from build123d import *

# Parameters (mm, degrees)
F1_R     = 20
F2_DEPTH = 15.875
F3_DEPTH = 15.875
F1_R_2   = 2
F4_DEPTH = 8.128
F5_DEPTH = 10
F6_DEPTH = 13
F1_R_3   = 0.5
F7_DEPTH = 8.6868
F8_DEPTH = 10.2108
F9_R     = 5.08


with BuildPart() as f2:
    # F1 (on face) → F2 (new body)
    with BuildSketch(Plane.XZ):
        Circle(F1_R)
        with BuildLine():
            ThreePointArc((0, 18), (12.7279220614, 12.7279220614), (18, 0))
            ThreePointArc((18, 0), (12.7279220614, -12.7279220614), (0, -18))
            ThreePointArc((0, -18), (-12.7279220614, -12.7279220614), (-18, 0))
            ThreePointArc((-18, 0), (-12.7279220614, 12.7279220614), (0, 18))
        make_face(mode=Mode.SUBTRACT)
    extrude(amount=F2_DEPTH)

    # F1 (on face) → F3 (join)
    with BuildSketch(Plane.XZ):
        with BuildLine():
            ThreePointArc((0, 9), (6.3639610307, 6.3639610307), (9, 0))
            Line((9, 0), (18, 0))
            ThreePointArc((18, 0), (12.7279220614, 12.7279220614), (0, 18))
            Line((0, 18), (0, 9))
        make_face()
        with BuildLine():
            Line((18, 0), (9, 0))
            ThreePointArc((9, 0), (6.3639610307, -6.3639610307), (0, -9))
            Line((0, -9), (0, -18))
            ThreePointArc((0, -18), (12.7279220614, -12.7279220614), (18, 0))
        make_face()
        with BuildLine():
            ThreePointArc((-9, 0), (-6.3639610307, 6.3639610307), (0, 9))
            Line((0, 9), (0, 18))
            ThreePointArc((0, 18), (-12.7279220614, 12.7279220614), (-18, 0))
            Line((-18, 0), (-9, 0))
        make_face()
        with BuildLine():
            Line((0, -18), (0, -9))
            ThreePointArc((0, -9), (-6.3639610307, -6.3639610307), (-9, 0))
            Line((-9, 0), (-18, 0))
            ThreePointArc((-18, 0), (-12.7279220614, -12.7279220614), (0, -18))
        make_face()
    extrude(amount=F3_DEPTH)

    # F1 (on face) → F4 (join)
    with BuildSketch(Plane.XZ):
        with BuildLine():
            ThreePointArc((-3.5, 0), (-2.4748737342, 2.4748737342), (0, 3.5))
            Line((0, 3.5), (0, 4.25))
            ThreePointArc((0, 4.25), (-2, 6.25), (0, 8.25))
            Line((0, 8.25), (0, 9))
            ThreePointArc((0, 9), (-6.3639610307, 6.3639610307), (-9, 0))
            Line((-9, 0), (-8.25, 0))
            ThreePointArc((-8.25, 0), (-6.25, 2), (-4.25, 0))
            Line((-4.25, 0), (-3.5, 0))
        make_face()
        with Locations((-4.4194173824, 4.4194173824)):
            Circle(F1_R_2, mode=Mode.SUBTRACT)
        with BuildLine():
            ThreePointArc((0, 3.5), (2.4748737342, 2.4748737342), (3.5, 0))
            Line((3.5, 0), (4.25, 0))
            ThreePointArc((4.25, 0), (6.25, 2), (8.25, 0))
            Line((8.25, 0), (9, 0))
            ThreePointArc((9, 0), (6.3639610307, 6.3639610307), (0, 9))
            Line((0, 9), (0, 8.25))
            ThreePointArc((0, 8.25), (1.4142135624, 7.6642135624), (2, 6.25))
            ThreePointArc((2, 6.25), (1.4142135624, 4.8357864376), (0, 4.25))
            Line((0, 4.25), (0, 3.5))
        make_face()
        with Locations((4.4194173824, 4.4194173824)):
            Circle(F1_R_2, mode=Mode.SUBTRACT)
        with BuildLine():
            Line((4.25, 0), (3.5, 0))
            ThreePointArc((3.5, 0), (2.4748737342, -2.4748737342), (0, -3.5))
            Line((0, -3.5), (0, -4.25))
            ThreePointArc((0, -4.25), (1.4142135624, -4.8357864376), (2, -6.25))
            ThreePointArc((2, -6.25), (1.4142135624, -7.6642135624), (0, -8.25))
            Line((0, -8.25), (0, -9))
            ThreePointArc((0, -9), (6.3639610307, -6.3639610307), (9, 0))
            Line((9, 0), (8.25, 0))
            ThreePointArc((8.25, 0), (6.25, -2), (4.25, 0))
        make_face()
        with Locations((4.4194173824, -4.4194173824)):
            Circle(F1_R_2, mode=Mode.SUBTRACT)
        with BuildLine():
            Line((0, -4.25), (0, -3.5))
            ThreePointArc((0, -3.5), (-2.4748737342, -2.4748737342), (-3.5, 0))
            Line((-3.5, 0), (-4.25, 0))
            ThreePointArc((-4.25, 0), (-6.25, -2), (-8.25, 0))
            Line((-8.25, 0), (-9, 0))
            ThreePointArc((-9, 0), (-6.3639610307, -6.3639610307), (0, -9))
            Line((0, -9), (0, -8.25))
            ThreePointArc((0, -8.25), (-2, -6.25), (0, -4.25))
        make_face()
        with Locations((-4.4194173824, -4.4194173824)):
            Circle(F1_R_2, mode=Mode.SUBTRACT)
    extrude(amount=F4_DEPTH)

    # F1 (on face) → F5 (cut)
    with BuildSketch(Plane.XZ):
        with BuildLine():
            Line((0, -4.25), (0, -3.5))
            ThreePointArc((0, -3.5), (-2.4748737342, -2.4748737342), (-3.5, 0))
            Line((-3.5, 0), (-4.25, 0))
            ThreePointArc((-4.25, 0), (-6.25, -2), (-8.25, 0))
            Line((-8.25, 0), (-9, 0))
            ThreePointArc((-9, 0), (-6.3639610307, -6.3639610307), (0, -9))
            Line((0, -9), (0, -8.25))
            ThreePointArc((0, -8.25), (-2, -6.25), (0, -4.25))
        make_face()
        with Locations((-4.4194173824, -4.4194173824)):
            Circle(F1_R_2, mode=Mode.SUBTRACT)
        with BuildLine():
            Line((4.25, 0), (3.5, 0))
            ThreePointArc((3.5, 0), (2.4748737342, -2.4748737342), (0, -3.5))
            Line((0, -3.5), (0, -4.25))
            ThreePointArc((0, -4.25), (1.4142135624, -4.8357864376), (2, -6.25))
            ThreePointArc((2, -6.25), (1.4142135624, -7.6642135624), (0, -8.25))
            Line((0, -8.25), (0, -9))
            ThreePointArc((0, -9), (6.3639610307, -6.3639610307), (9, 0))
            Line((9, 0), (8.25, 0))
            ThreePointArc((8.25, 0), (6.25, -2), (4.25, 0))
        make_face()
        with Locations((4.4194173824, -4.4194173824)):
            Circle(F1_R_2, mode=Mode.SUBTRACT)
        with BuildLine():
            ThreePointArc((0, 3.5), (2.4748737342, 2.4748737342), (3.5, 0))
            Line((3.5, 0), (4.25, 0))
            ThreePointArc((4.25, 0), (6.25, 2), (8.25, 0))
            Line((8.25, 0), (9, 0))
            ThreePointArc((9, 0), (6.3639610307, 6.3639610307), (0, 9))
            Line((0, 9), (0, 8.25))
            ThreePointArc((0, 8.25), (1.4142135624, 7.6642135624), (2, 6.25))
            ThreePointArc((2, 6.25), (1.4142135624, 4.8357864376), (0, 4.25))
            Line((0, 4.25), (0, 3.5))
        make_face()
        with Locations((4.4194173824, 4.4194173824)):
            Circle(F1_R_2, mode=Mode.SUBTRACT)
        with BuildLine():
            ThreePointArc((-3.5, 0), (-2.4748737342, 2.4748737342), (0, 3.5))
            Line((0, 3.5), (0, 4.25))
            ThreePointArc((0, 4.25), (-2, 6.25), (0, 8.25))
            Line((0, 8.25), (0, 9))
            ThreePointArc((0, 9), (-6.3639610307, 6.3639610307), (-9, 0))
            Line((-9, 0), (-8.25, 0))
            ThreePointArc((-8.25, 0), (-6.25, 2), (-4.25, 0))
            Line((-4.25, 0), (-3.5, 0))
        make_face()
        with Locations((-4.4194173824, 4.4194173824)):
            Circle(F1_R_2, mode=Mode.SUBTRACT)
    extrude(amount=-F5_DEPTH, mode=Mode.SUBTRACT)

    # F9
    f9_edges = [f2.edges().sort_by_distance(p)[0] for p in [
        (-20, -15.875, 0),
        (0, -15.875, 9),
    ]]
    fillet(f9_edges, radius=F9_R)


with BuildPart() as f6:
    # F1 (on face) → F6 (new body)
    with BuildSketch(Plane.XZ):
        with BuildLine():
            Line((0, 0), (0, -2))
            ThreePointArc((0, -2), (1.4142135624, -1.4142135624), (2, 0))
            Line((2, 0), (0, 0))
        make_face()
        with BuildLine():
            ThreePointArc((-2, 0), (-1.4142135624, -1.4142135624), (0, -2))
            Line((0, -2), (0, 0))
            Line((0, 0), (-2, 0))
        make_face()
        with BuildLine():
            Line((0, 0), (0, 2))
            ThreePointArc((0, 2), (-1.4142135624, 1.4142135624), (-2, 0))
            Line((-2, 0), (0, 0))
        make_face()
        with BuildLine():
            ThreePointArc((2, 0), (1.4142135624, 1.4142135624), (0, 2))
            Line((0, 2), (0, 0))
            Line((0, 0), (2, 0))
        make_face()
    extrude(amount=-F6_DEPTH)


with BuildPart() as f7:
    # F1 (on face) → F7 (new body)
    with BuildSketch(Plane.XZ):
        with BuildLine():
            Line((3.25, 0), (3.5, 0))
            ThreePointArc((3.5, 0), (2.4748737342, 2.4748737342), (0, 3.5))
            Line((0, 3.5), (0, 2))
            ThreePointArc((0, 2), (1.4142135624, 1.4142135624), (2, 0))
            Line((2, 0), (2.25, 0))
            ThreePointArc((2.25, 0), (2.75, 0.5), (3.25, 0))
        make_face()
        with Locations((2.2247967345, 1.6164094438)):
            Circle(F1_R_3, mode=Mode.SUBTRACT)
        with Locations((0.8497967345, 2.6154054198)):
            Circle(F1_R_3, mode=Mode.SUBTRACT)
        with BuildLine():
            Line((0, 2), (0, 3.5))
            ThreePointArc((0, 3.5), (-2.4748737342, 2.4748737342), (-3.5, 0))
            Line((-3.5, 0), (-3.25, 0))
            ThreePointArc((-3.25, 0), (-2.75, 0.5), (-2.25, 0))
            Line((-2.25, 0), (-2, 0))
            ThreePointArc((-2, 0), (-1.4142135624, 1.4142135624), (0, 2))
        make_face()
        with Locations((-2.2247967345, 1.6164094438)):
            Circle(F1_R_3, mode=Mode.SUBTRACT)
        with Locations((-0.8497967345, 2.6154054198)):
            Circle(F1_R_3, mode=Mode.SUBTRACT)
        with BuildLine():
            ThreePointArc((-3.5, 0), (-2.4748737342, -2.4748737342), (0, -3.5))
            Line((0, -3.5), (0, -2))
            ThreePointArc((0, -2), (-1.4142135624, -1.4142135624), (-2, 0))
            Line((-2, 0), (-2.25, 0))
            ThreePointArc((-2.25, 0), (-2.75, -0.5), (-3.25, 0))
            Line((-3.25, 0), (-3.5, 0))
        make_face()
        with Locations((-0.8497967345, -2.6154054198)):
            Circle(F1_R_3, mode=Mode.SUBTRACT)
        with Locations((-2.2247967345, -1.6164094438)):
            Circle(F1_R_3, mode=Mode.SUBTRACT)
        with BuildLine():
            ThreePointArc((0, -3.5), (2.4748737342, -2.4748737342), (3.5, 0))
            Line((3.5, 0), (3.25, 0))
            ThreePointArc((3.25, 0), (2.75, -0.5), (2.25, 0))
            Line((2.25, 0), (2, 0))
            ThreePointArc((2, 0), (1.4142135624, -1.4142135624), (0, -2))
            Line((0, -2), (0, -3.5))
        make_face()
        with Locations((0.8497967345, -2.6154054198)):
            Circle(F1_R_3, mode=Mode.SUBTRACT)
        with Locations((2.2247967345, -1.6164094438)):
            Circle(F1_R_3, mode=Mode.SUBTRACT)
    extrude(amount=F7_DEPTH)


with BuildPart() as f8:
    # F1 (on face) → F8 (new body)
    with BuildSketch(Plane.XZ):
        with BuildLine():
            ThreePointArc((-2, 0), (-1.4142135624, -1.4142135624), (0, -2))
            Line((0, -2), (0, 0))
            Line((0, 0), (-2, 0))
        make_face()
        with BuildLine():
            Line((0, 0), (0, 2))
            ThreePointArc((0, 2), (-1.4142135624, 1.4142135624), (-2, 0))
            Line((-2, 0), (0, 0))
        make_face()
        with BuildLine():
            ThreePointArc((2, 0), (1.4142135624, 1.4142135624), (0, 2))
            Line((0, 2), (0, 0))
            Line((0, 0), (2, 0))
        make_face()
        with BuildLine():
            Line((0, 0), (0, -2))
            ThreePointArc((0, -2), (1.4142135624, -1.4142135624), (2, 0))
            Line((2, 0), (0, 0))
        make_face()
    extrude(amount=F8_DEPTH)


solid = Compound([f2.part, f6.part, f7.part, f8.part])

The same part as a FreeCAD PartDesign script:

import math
import FreeCAD as App
import Part
import Sketcher

V = App.Vector
Q = App.Units.Quantity


def edges_at(feature, points):
    """Names of the edges that pass closest to the given points."""
    edges = feature.Shape.Edges
    near = lambda p: min(range(len(edges)), key=lambda i: edges[i].distToShape(Part.Vertex(*p))[0])
    return sorted({f"Edge{near(p) + 1}" for p in points})

doc = App.newDocument("Part")
body = doc.addObject("PartDesign::Body", "Body")

# Sketch on XZ plane
sketch1 = doc.addObject("Sketcher::SketchObject", "Sketch")
body.addObject(sketch1)
sketch1.AttachmentSupport = (doc.XZ_Plane, [""])
sketch1.MapMode = "FlatFace"
sketch1.addGeometry(Part.Circle(V(0, 0, 0), V(0, 0, 1), 20), False)
sketch1.addGeometry(Part.ArcOfCircle(Part.Circle(V(0, 0, 0), V(0, 0, 1), 18), math.radians(90), math.radians(180)), False)
sketch1.addGeometry(Part.ArcOfCircle(Part.Circle(V(0, 0, 0), V(0, 0, 1), 18), math.radians(0), math.radians(90)), False)
sketch1.addGeometry(Part.ArcOfCircle(Part.Circle(V(0, 0, 0), V(0, 0, 1), 18), math.radians(-90), math.radians(0)), False)
sketch1.addGeometry(Part.ArcOfCircle(Part.Circle(V(0, 0, 0), V(0, 0, 1), 18), math.radians(180), math.radians(270)), False)
sketch1.addConstraint(Sketcher.Constraint("Tangent", 1, 1, 2, 2))
sketch1.addConstraint(Sketcher.Constraint("Tangent", 2, 1, 3, 2))
sketch1.addConstraint(Sketcher.Constraint("Tangent", 3, 1, 4, 2))
sketch1.addConstraint(Sketcher.Constraint("Tangent", 4, 1, 1, 2))
sketch1.addConstraint(Sketcher.Constraint("Coincident", 0, 3, -1, 1))
sketch1.addConstraint(Sketcher.Constraint("Coincident", 1, 3, -1, 1))
sketch1.addConstraint(Sketcher.Constraint("Equal", 1, 2))
sketch1.addConstraint(Sketcher.Constraint("PointOnObject", 1, 1, -2))
sketch1.addConstraint(Sketcher.Constraint("PointOnObject", 2, 1, -1))
sketch1.addConstraint(Sketcher.Constraint("PointOnObject", 3, 1, -2))
sketch1.addConstraint(Sketcher.Constraint("PointOnObject", 4, 1, -1))
sketch1.addConstraint(Sketcher.Constraint("Diameter", 0, Q("40 mm")))
sketch1.addConstraint(Sketcher.Constraint("Radius", 1, Q("18 mm")))
pad1 = doc.addObject("PartDesign::Pad", "Pad")
body.addObject(pad1)
pad1.Profile = sketch1
pad1.Length = 15.875

# Sketch on XZ plane
sketch2 = doc.addObject("Sketcher::SketchObject", "Sketch001")
body.addObject(sketch2)
sketch2.AttachmentSupport = (doc.XZ_Plane, [""])
sketch2.MapMode = "FlatFace"
sketch2.addGeometry(Part.ArcOfCircle(Part.Circle(V(0, 0, 0), V(0, 0, 1), 18), math.radians(-90), math.radians(0)), False)
sketch2.addGeometry(Part.ArcOfCircle(Part.Circle(V(0, 0, 0), V(0, 0, 1), 18), math.radians(0), math.radians(90)), False)
sketch2.addGeometry(Part.ArcOfCircle(Part.Circle(V(0, 0, 0), V(0, 0, 1), 18), math.radians(90), math.radians(180)), False)
sketch2.addGeometry(Part.ArcOfCircle(Part.Circle(V(0, 0, 0), V(0, 0, 1), 18), math.radians(180), math.radians(270)), False)
sketch2.addGeometry(Part.ArcOfCircle(Part.Circle(V(0, 0, 0), V(0, 0, 1), 9), math.radians(0), math.radians(90)), False)
sketch2.addGeometry(Part.ArcOfCircle(Part.Circle(V(0, 0, 0), V(0, 0, 1), 9), math.radians(-90), math.radians(0)), False)
sketch2.addGeometry(Part.ArcOfCircle(Part.Circle(V(0, 0, 0), V(0, 0, 1), 9), math.radians(180), math.radians(270)), False)
sketch2.addGeometry(Part.ArcOfCircle(Part.Circle(V(0, 0, 0), V(0, 0, 1), 9), math.radians(90), math.radians(180)), False)
sketch2.addConstraint(Sketcher.Constraint("Tangent", 0, 2, 1, 1))
sketch2.addConstraint(Sketcher.Constraint("Tangent", 1, 2, 2, 1))
sketch2.addConstraint(Sketcher.Constraint("Tangent", 2, 2, 3, 1))
sketch2.addConstraint(Sketcher.Constraint("Tangent", 3, 2, 0, 1))
sketch2.addConstraint(Sketcher.Constraint("Tangent", 4, 1, 5, 2))
sketch2.addConstraint(Sketcher.Constraint("Tangent", 5, 1, 6, 2))
sketch2.addConstraint(Sketcher.Constraint("Tangent", 6, 1, 7, 2))
sketch2.addConstraint(Sketcher.Constraint("Tangent", 7, 1, 4, 2))
sketch2.addConstraint(Sketcher.Constraint("Coincident", 0, 3, -1, 1))
sketch2.addConstraint(Sketcher.Constraint("Coincident", 4, 3, -1, 1))
sketch2.addConstraint(Sketcher.Constraint("Equal", 0, 1))
sketch2.addConstraint(Sketcher.Constraint("Equal", 4, 5))
sketch2.addConstraint(Sketcher.Constraint("PointOnObject", 0, 2, -1))
sketch2.addConstraint(Sketcher.Constraint("PointOnObject", 1, 2, -2))
sketch2.addConstraint(Sketcher.Constraint("PointOnObject", 2, 2, -1))
sketch2.addConstraint(Sketcher.Constraint("PointOnObject", 3, 2, -2))
sketch2.addConstraint(Sketcher.Constraint("PointOnObject", 4, 1, -1))
sketch2.addConstraint(Sketcher.Constraint("PointOnObject", 5, 1, -2))
sketch2.addConstraint(Sketcher.Constraint("PointOnObject", 6, 1, -1))
sketch2.addConstraint(Sketcher.Constraint("PointOnObject", 7, 1, -2))
sketch2.addConstraint(Sketcher.Constraint("Radius", 0, Q("18 mm")))
sketch2.addConstraint(Sketcher.Constraint("Radius", 4, Q("9 mm")))
pad2 = doc.addObject("PartDesign::Pad", "Pad001")
body.addObject(pad2)
pad2.Profile = sketch2
pad2.Length = 15.875

# Sketch on XZ plane
sketch3 = doc.addObject("Sketcher::SketchObject", "Sketch002")
body.addObject(sketch3)
sketch3.AttachmentSupport = (doc.XZ_Plane, [""])
sketch3.MapMode = "FlatFace"
sketch3.addGeometry(Part.ArcOfCircle(Part.Circle(V(0, 0, 0), V(0, 0, 1), 9), math.radians(90), math.radians(180)), False)
sketch3.addGeometry(Part.ArcOfCircle(Part.Circle(V(0, 0, 0), V(0, 0, 1), 9), math.radians(180), math.radians(270)), False)
sketch3.addGeometry(Part.ArcOfCircle(Part.Circle(V(0, 0, 0), V(0, 0, 1), 9), math.radians(-90), math.radians(0)), False)
sketch3.addGeometry(Part.ArcOfCircle(Part.Circle(V(0, 0, 0), V(0, 0, 1), 9), math.radians(0), math.radians(90)), False)
sketch3.addGeometry(Part.Circle(V(-4.4, -4.4, 0), V(0, 0, 1), 2), False)
sketch3.addGeometry(Part.ArcOfCircle(Part.Circle(V(0, -6.2, 0), V(0, 0, 1), 2), math.radians(0), math.radians(90)), False)
sketch3.addGeometry(Part.ArcOfCircle(Part.Circle(V(0, -6.2, 0), V(0, 0, 1), 2), math.radians(-90), math.radians(0)), False)
sketch3.addGeometry(Part.ArcOfCircle(Part.Circle(V(0, -6.2, 0), V(0, 0, 1), 2), math.radians(90), math.radians(270)), False)
sketch3.addGeometry(Part.Circle(V(4.4, -4.4, 0), V(0, 0, 1), 2), False)
sketch3.addGeometry(Part.Circle(V(-6.2, 0, 0), V(0, 0, 1), 2), False)
sketch3.addGeometry(Part.Circle(V(-4.4, 4.4, 0), V(0, 0, 1), 2), False)
sketch3.addGeometry(Part.ArcOfCircle(Part.Circle(V(0, 0, 0), V(0, 0, 1), 3.5), math.radians(90), math.radians(180)), False)
sketch3.addGeometry(Part.ArcOfCircle(Part.Circle(V(0, 0, 0), V(0, 0, 1), 3.5), math.radians(0), math.radians(90)), False)
sketch3.addGeometry(Part.ArcOfCircle(Part.Circle(V(0, 0, 0), V(0, 0, 1), 3.5), math.radians(-90), math.radians(0)), False)
sketch3.addGeometry(Part.ArcOfCircle(Part.Circle(V(0, 0, 0), V(0, 0, 1), 3.5), math.radians(180), math.radians(270)), False)
sketch3.addGeometry(Part.Circle(V(6.2, 0, 0), V(0, 0, 1), 2), False)
sketch3.addGeometry(Part.ArcOfCircle(Part.Circle(V(0, 6.2, 0), V(0, 0, 1), 2), math.radians(90), math.radians(270)), False)
sketch3.addGeometry(Part.ArcOfCircle(Part.Circle(V(0, 6.2, 0), V(0, 0, 1), 2), math.radians(0), math.radians(90)), False)
sketch3.addGeometry(Part.ArcOfCircle(Part.Circle(V(0, 6.2, 0), V(0, 0, 1), 2), math.radians(-90), math.radians(0)), False)
sketch3.addGeometry(Part.Circle(V(4.4, 4.4, 0), V(0, 0, 1), 2), False)
sketch3.addConstraint(Sketcher.Constraint("Tangent", 0, 2, 1, 1))
sketch3.addConstraint(Sketcher.Constraint("Tangent", 1, 2, 2, 1))
sketch3.addConstraint(Sketcher.Constraint("Tangent", 2, 2, 3, 1))
sketch3.addConstraint(Sketcher.Constraint("Tangent", 3, 2, 0, 1))
sketch3.addConstraint(Sketcher.Constraint("Tangent", 5, 1, 6, 2))
sketch3.addConstraint(Sketcher.Constraint("Tangent", 6, 1, 7, 2))
sketch3.addConstraint(Sketcher.Constraint("Tangent", 7, 1, 5, 2))
sketch3.addConstraint(Sketcher.Constraint("Tangent", 11, 1, 12, 2))
sketch3.addConstraint(Sketcher.Constraint("Tangent", 12, 1, 13, 2))
sketch3.addConstraint(Sketcher.Constraint("Tangent", 13, 1, 14, 2))
sketch3.addConstraint(Sketcher.Constraint("Tangent", 14, 1, 11, 2))
sketch3.addConstraint(Sketcher.Constraint("Tangent", 16, 1, 17, 2))
sketch3.addConstraint(Sketcher.Constraint("Tangent", 17, 1, 18, 2))
sketch3.addConstraint(Sketcher.Constraint("Tangent", 18, 1, 16, 2))
sketch3.addConstraint(Sketcher.Constraint("Coincident", 0, 3, -1, 1))
sketch3.addConstraint(Sketcher.Constraint("Coincident", 11, 3, -1, 1))
sketch3.addConstraint(Sketcher.Constraint("Equal", 0, 1))
sketch3.addConstraint(Sketcher.Constraint("Equal", 4, 5))
sketch3.addConstraint(Sketcher.Constraint("Equal", 7, 8))
sketch3.addConstraint(Sketcher.Constraint("Equal", 8, 9))
sketch3.addConstraint(Sketcher.Constraint("Equal", 9, 10))
sketch3.addConstraint(Sketcher.Constraint("Equal", 11, 12))
sketch3.addConstraint(Sketcher.Constraint("Equal", 10, 15))
sketch3.addConstraint(Sketcher.Constraint("Equal", 15, 16))
sketch3.addConstraint(Sketcher.Constraint("Equal", 18, 19))
sketch3.addConstraint(Sketcher.Constraint("Symmetric", 8, 3, 10, 3, -1, 1))
sketch3.addConstraint(Sketcher.Constraint("Symmetric", 9, 3, 15, 3, -1, 1))
sketch3.addConstraint(Sketcher.Constraint("Symmetric", 5, 3, 16, 3, -1, 1))
sketch3.addConstraint(Sketcher.Constraint("Symmetric", 4, 3, 19, 3, -1, 1))
sketch3.addConstraint(Sketcher.Constraint("Symmetric", 4, 3, 8, 3, -2))
sketch3.addConstraint(Sketcher.Constraint("Symmetric", 5, 1, 17, 1, -1))
sketch3.addConstraint(Sketcher.Constraint("PointOnObject", 9, 3, -1))
sketch3.addConstraint(Sketcher.Constraint("PointOnObject", 0, 2, -1))
sketch3.addConstraint(Sketcher.Constraint("PointOnObject", 1, 2, -2))
sketch3.addConstraint(Sketcher.Constraint("PointOnObject", 2, 2, -1))
sketch3.addConstraint(Sketcher.Constraint("PointOnObject", 3, 2, -2))
sketch3.addConstraint(Sketcher.Constraint("PointOnObject", 6, 1, -2))
sketch3.addConstraint(Sketcher.Constraint("PointOnObject", 7, 1, -2))
sketch3.addConstraint(Sketcher.Constraint("PointOnObject", 11, 1, -2))
sketch3.addConstraint(Sketcher.Constraint("PointOnObject", 12, 1, -1))
sketch3.addConstraint(Sketcher.Constraint("PointOnObject", 13, 1, -2))
sketch3.addConstraint(Sketcher.Constraint("PointOnObject", 14, 1, -1))
sketch3.addConstraint(Sketcher.Constraint("PointOnObject", 16, 1, -2))
sketch3.addConstraint(Sketcher.Constraint("PointOnObject", 18, 1, -2))
sketch3.addConstraint(Sketcher.Constraint("Horizontal", 7, 3, 5, 1))
sketch3.addConstraint(Sketcher.Constraint("Diameter", 4, Q("4 mm")))
sketch3.addConstraint(Sketcher.Constraint("Radius", 0, Q("9 mm")))
sketch3.addConstraint(Sketcher.Constraint("Radius", 11, Q("3.5 mm")))
sketch3.addConstraint(Sketcher.Constraint("DistanceY", 5, 3, -1, 1, Q("6.25 mm")))
sketch3.addConstraint(Sketcher.Constraint("DistanceX", 9, 3, -1, 1, Q("6.25 mm")))
sketch3.addConstraint(Sketcher.Constraint("DistanceX", 4, 3, -1, 1, Q("4.419417 mm")))
sketch3.addConstraint(Sketcher.Constraint("DistanceY", 4, 3, -1, 1, Q("4.419417 mm")))
pad3 = doc.addObject("PartDesign::Pad", "Pad002")
body.addObject(pad3)
pad3.Profile = sketch3
pad3.Length = 8.128

# Sketch on XZ plane
sketch4 = doc.addObject("Sketcher::SketchObject", "Sketch003")
body.addObject(sketch4)
sketch4.AttachmentSupport = (doc.XZ_Plane, [""])
sketch4.MapMode = "FlatFace"
sketch4.addGeometry(Part.ArcOfCircle(Part.Circle(V(0, 0, 0), V(0, 0, 1), 9), math.radians(180), math.radians(270)), False)
sketch4.addGeometry(Part.ArcOfCircle(Part.Circle(V(0, 0, 0), V(0, 0, 1), 9), math.radians(-90), math.radians(0)), False)
sketch4.addGeometry(Part.ArcOfCircle(Part.Circle(V(0, 0, 0), V(0, 0, 1), 9), math.radians(0), math.radians(90)), False)
sketch4.addGeometry(Part.ArcOfCircle(Part.Circle(V(0, 0, 0), V(0, 0, 1), 9), math.radians(90), math.radians(180)), False)
sketch4.addGeometry(Part.Circle(V(-4.4, -4.4, 0), V(0, 0, 1), 2), False)
sketch4.addGeometry(Part.ArcOfCircle(Part.Circle(V(0, -6.2, 0), V(0, 0, 1), 2), math.radians(90), math.radians(270)), False)
sketch4.addGeometry(Part.ArcOfCircle(Part.Circle(V(0, -6.2, 0), V(0, 0, 1), 2), math.radians(0), math.radians(90)), False)
sketch4.addGeometry(Part.ArcOfCircle(Part.Circle(V(0, -6.2, 0), V(0, 0, 1), 2), math.radians(-90), math.radians(0)), False)
sketch4.addGeometry(Part.Circle(V(4.4, -4.4, 0), V(0, 0, 1), 2), False)
sketch4.addGeometry(Part.Circle(V(-6.2, 0, 0), V(0, 0, 1), 2), False)
sketch4.addGeometry(Part.Circle(V(-4.4, 4.4, 0), V(0, 0, 1), 2), False)
sketch4.addGeometry(Part.ArcOfCircle(Part.Circle(V(0, 0, 0), V(0, 0, 1), 3.5), math.radians(180), math.radians(270)), False)
sketch4.addGeometry(Part.ArcOfCircle(Part.Circle(V(0, 0, 0), V(0, 0, 1), 3.5), math.radians(90), math.radians(180)), False)
sketch4.addGeometry(Part.ArcOfCircle(Part.Circle(V(0, 0, 0), V(0, 0, 1), 3.5), math.radians(0), math.radians(90)), False)
sketch4.addGeometry(Part.ArcOfCircle(Part.Circle(V(0, 0, 0), V(0, 0, 1), 3.5), math.radians(-90), math.radians(0)), False)
sketch4.addGeometry(Part.Circle(V(6.2, 0, 0), V(0, 0, 1), 2), False)
sketch4.addGeometry(Part.ArcOfCircle(Part.Circle(V(0, 6.2, 0), V(0, 0, 1), 2), math.radians(-90), math.radians(0)), False)
sketch4.addGeometry(Part.ArcOfCircle(Part.Circle(V(0, 6.2, 0), V(0, 0, 1), 2), math.radians(90), math.radians(270)), False)
sketch4.addGeometry(Part.ArcOfCircle(Part.Circle(V(0, 6.2, 0), V(0, 0, 1), 2), math.radians(0), math.radians(90)), False)
sketch4.addGeometry(Part.Circle(V(4.4, 4.4, 0), V(0, 0, 1), 2), False)
sketch4.addConstraint(Sketcher.Constraint("Tangent", 0, 2, 1, 1))
sketch4.addConstraint(Sketcher.Constraint("Tangent", 1, 2, 2, 1))
sketch4.addConstraint(Sketcher.Constraint("Tangent", 2, 2, 3, 1))
sketch4.addConstraint(Sketcher.Constraint("Tangent", 3, 2, 0, 1))
sketch4.addConstraint(Sketcher.Constraint("Tangent", 5, 1, 6, 2))
sketch4.addConstraint(Sketcher.Constraint("Tangent", 6, 1, 7, 2))
sketch4.addConstraint(Sketcher.Constraint("Tangent", 7, 1, 5, 2))
sketch4.addConstraint(Sketcher.Constraint("Tangent", 11, 1, 12, 2))
sketch4.addConstraint(Sketcher.Constraint("Tangent", 12, 1, 13, 2))
sketch4.addConstraint(Sketcher.Constraint("Tangent", 13, 1, 14, 2))
sketch4.addConstraint(Sketcher.Constraint("Tangent", 14, 1, 11, 2))
sketch4.addConstraint(Sketcher.Constraint("Tangent", 16, 1, 17, 2))
sketch4.addConstraint(Sketcher.Constraint("Tangent", 17, 1, 18, 2))
sketch4.addConstraint(Sketcher.Constraint("Tangent", 18, 1, 16, 2))
sketch4.addConstraint(Sketcher.Constraint("Coincident", 0, 3, -1, 1))
sketch4.addConstraint(Sketcher.Constraint("Coincident", 11, 3, -1, 1))
sketch4.addConstraint(Sketcher.Constraint("Equal", 0, 1))
sketch4.addConstraint(Sketcher.Constraint("Equal", 4, 5))
sketch4.addConstraint(Sketcher.Constraint("Equal", 7, 8))
sketch4.addConstraint(Sketcher.Constraint("Equal", 8, 9))
sketch4.addConstraint(Sketcher.Constraint("Equal", 9, 10))
sketch4.addConstraint(Sketcher.Constraint("Equal", 11, 12))
sketch4.addConstraint(Sketcher.Constraint("Equal", 10, 15))
sketch4.addConstraint(Sketcher.Constraint("Equal", 15, 16))
sketch4.addConstraint(Sketcher.Constraint("Equal", 18, 19))
sketch4.addConstraint(Sketcher.Constraint("Symmetric", 8, 3, 10, 3, -1, 1))
sketch4.addConstraint(Sketcher.Constraint("Symmetric", 9, 3, 15, 3, -1, 1))
sketch4.addConstraint(Sketcher.Constraint("Symmetric", 5, 3, 16, 3, -1, 1))
sketch4.addConstraint(Sketcher.Constraint("Symmetric", 4, 3, 19, 3, -1, 1))
sketch4.addConstraint(Sketcher.Constraint("Symmetric", 4, 3, 8, 3, -2))
sketch4.addConstraint(Sketcher.Constraint("Symmetric", 6, 1, 18, 1, -1))
sketch4.addConstraint(Sketcher.Constraint("PointOnObject", 9, 3, -1))
sketch4.addConstraint(Sketcher.Constraint("PointOnObject", 0, 2, -2))
sketch4.addConstraint(Sketcher.Constraint("PointOnObject", 1, 2, -1))
sketch4.addConstraint(Sketcher.Constraint("PointOnObject", 2, 2, -2))
sketch4.addConstraint(Sketcher.Constraint("PointOnObject", 3, 2, -1))
sketch4.addConstraint(Sketcher.Constraint("PointOnObject", 5, 1, -2))
sketch4.addConstraint(Sketcher.Constraint("PointOnObject", 7, 1, -2))
sketch4.addConstraint(Sketcher.Constraint("PointOnObject", 11, 1, -1))
sketch4.addConstraint(Sketcher.Constraint("PointOnObject", 12, 1, -2))
sketch4.addConstraint(Sketcher.Constraint("PointOnObject", 13, 1, -1))
sketch4.addConstraint(Sketcher.Constraint("PointOnObject", 14, 1, -2))
sketch4.addConstraint(Sketcher.Constraint("PointOnObject", 16, 1, -2))
sketch4.addConstraint(Sketcher.Constraint("PointOnObject", 17, 1, -2))
sketch4.addConstraint(Sketcher.Constraint("Horizontal", 7, 3, 6, 1))
sketch4.addConstraint(Sketcher.Constraint("Diameter", 4, Q("4 mm")))
sketch4.addConstraint(Sketcher.Constraint("Radius", 0, Q("9 mm")))
sketch4.addConstraint(Sketcher.Constraint("Radius", 11, Q("3.5 mm")))
sketch4.addConstraint(Sketcher.Constraint("DistanceY", 5, 3, -1, 1, Q("6.25 mm")))
sketch4.addConstraint(Sketcher.Constraint("DistanceX", 9, 3, -1, 1, Q("6.25 mm")))
sketch4.addConstraint(Sketcher.Constraint("DistanceX", 4, 3, -1, 1, Q("4.419417 mm")))
sketch4.addConstraint(Sketcher.Constraint("DistanceY", 4, 3, -1, 1, Q("4.419417 mm")))
pocket1 = doc.addObject("PartDesign::Pocket", "Pocket")
body.addObject(pocket1)
pocket1.Profile = sketch4
pocket1.Length = 10
doc.recompute()

fillet = doc.addObject("PartDesign::Fillet", "Fillet")
body.addObject(fillet)
fillet.Base = (pocket1, edges_at(pocket1, [(-20, -15.875, 0), (6.364, -15.875, 6.364)]))
fillet.Radius = 5.08
body2 = doc.addObject("PartDesign::Body", "Body001")

# Sketch on XZ plane
sketch5 = doc.addObject("Sketcher::SketchObject", "Sketch004")
body2.addObject(sketch5)
sketch5.AttachmentSupport = (doc.getObject("XZ_Plane001"), [""])
sketch5.MapMode = "FlatFace"
sketch5.addGeometry(Part.ArcOfCircle(Part.Circle(V(0, 0, 0), V(0, 0, 1), 2), math.radians(-90), math.radians(0)), False)
sketch5.addGeometry(Part.ArcOfCircle(Part.Circle(V(0, 0, 0), V(0, 0, 1), 2), math.radians(0), math.radians(90)), False)
sketch5.addGeometry(Part.ArcOfCircle(Part.Circle(V(0, 0, 0), V(0, 0, 1), 2), math.radians(90), math.radians(180)), False)
sketch5.addGeometry(Part.ArcOfCircle(Part.Circle(V(0, 0, 0), V(0, 0, 1), 2), math.radians(180), math.radians(270)), False)
sketch5.addConstraint(Sketcher.Constraint("Tangent", 0, 2, 1, 1))
sketch5.addConstraint(Sketcher.Constraint("Tangent", 1, 2, 2, 1))
sketch5.addConstraint(Sketcher.Constraint("Tangent", 2, 2, 3, 1))
sketch5.addConstraint(Sketcher.Constraint("Tangent", 3, 2, 0, 1))
sketch5.addConstraint(Sketcher.Constraint("Coincident", 0, 3, -1, 1))
sketch5.addConstraint(Sketcher.Constraint("Equal", 0, 1))
sketch5.addConstraint(Sketcher.Constraint("PointOnObject", 0, 2, -1))
sketch5.addConstraint(Sketcher.Constraint("PointOnObject", 1, 2, -2))
sketch5.addConstraint(Sketcher.Constraint("PointOnObject", 2, 2, -1))
sketch5.addConstraint(Sketcher.Constraint("PointOnObject", 3, 2, -2))
sketch5.addConstraint(Sketcher.Constraint("Radius", 0, Q("2 mm")))
pad4 = doc.addObject("PartDesign::Pad", "Pad003")
body2.addObject(pad4)
pad4.Profile = sketch5
pad4.Length = 13
pad4.Reversed = True
body3 = doc.addObject("PartDesign::Body", "Body002")

# Sketch on XZ plane
sketch6 = doc.addObject("Sketcher::SketchObject", "Sketch005")
body3.addObject(sketch6)
sketch6.AttachmentSupport = (doc.getObject("XZ_Plane002"), [""])
sketch6.MapMode = "FlatFace"
sketch6.addGeometry(Part.ArcOfCircle(Part.Circle(V(0, 0, 0), V(0, 0, 1), 3.5), math.radians(0), math.radians(90)), False)
sketch6.addGeometry(Part.ArcOfCircle(Part.Circle(V(0, 0, 0), V(0, 0, 1), 3.5), math.radians(90), math.radians(180)), False)
sketch6.addGeometry(Part.ArcOfCircle(Part.Circle(V(0, 0, 0), V(0, 0, 1), 3.5), math.radians(180), math.radians(270)), False)
sketch6.addGeometry(Part.ArcOfCircle(Part.Circle(V(0, 0, 0), V(0, 0, 1), 3.5), math.radians(-90), math.radians(0)), False)
sketch6.addGeometry(Part.Circle(V(-2.2, -1.6, 0), V(0, 0, 1), 0.5), False)
sketch6.addGeometry(Part.Circle(V(-0.8, -2.6, 0), V(0, 0, 1), 0.5), False)
sketch6.addGeometry(Part.Circle(V(0.8, -2.6, 0), V(0, 0, 1), 0.5), False)
sketch6.addGeometry(Part.Circle(V(2.2, -1.6, 0), V(0, 0, 1), 0.5), False)
sketch6.addGeometry(Part.Circle(V(-2.8, 0, 0), V(0, 0, 1), 0.5), False)
sketch6.addGeometry(Part.Circle(V(-2.2, 1.6, 0), V(0, 0, 1), 0.5), False)
sketch6.addGeometry(Part.Circle(V(-0.8, 2.6, 0), V(0, 0, 1), 0.5), False)
sketch6.addGeometry(Part.ArcOfCircle(Part.Circle(V(0, 0, 0), V(0, 0, 1), 2), math.radians(0), math.radians(90)), False)
sketch6.addGeometry(Part.ArcOfCircle(Part.Circle(V(0, 0, 0), V(0, 0, 1), 2), math.radians(-90), math.radians(0)), False)
sketch6.addGeometry(Part.ArcOfCircle(Part.Circle(V(0, 0, 0), V(0, 0, 1), 2), math.radians(180), math.radians(270)), False)
sketch6.addGeometry(Part.ArcOfCircle(Part.Circle(V(0, 0, 0), V(0, 0, 1), 2), math.radians(90), math.radians(180)), False)
sketch6.addGeometry(Part.Circle(V(2.8, 0, 0), V(0, 0, 1), 0.5), False)
sketch6.addGeometry(Part.Circle(V(0.8, 2.6, 0), V(0, 0, 1), 0.5), False)
sketch6.addGeometry(Part.Circle(V(2.2, 1.6, 0), V(0, 0, 1), 0.5), False)
sketch6.addConstraint(Sketcher.Constraint("Tangent", 0, 2, 1, 1))
sketch6.addConstraint(Sketcher.Constraint("Tangent", 1, 2, 2, 1))
sketch6.addConstraint(Sketcher.Constraint("Tangent", 2, 2, 3, 1))
sketch6.addConstraint(Sketcher.Constraint("Tangent", 3, 2, 0, 1))
sketch6.addConstraint(Sketcher.Constraint("Tangent", 11, 1, 12, 2))
sketch6.addConstraint(Sketcher.Constraint("Tangent", 12, 1, 13, 2))
sketch6.addConstraint(Sketcher.Constraint("Tangent", 13, 1, 14, 2))
sketch6.addConstraint(Sketcher.Constraint("Tangent", 14, 1, 11, 2))
sketch6.addConstraint(Sketcher.Constraint("Coincident", 0, 3, -1, 1))
sketch6.addConstraint(Sketcher.Constraint("Coincident", 11, 3, -1, 1))
sketch6.addConstraint(Sketcher.Constraint("Equal", 0, 1))
sketch6.addConstraint(Sketcher.Constraint("Equal", 4, 5))
sketch6.addConstraint(Sketcher.Constraint("Equal", 5, 6))
sketch6.addConstraint(Sketcher.Constraint("Equal", 6, 7))
sketch6.addConstraint(Sketcher.Constraint("Equal", 7, 8))
sketch6.addConstraint(Sketcher.Constraint("Equal", 8, 9))
sketch6.addConstraint(Sketcher.Constraint("Equal", 9, 10))
sketch6.addConstraint(Sketcher.Constraint("Equal", 11, 12))
sketch6.addConstraint(Sketcher.Constraint("Equal", 10, 15))
sketch6.addConstraint(Sketcher.Constraint("Equal", 15, 16))
sketch6.addConstraint(Sketcher.Constraint("Equal", 16, 17))
sketch6.addConstraint(Sketcher.Constraint("Symmetric", 7, 3, 9, 3, -1, 1))
sketch6.addConstraint(Sketcher.Constraint("Symmetric", 6, 3, 10, 3, -1, 1))
sketch6.addConstraint(Sketcher.Constraint("Symmetric", 8, 3, 15, 3, -1, 1))
sketch6.addConstraint(Sketcher.Constraint("Symmetric", 5, 3, 16, 3, -1, 1))
sketch6.addConstraint(Sketcher.Constraint("Symmetric", 4, 3, 17, 3, -1, 1))
sketch6.addConstraint(Sketcher.Constraint("Symmetric", 5, 3, 6, 3, -2))
sketch6.addConstraint(Sketcher.Constraint("Symmetric", 4, 3, 7, 3, -2))
sketch6.addConstraint(Sketcher.Constraint("PointOnObject", 8, 3, -1))
sketch6.addConstraint(Sketcher.Constraint("PointOnObject", 0, 2, -2))
sketch6.addConstraint(Sketcher.Constraint("PointOnObject", 1, 2, -1))
sketch6.addConstraint(Sketcher.Constraint("PointOnObject", 2, 2, -2))
sketch6.addConstraint(Sketcher.Constraint("PointOnObject", 3, 2, -1))
sketch6.addConstraint(Sketcher.Constraint("PointOnObject", 11, 1, -1))
sketch6.addConstraint(Sketcher.Constraint("PointOnObject", 12, 1, -2))
sketch6.addConstraint(Sketcher.Constraint("PointOnObject", 13, 1, -1))
sketch6.addConstraint(Sketcher.Constraint("PointOnObject", 14, 1, -2))
sketch6.addConstraint(Sketcher.Constraint("Diameter", 4, Q("1 mm")))
sketch6.addConstraint(Sketcher.Constraint("Radius", 11, Q("2 mm")))
sketch6.addConstraint(Sketcher.Constraint("Radius", 0, Q("3.5 mm")))
sketch6.addConstraint(Sketcher.Constraint("DistanceX", 8, 3, -1, 1, Q("2.75 mm")))
sketch6.addConstraint(Sketcher.Constraint("DistanceX", 4, 3, 5, 3, Q("1.375 mm")))
sketch6.addConstraint(Sketcher.Constraint("DistanceY", 4, 3, -1, 1, Q("1.616409 mm")))
sketch6.addConstraint(Sketcher.Constraint("DistanceX", 4, 3, -1, 1, Q("2.224797 mm")))
sketch6.addConstraint(Sketcher.Constraint("DistanceY", 5, 3, -1, 1, Q("2.615405 mm")))
pad5 = doc.addObject("PartDesign::Pad", "Pad004")
body3.addObject(pad5)
pad5.Profile = sketch6
pad5.Length = 8.6868
body4 = doc.addObject("PartDesign::Body", "Body003")

# Sketch on XZ plane
sketch7 = doc.addObject("Sketcher::SketchObject", "Sketch006")
body4.addObject(sketch7)
sketch7.AttachmentSupport = (doc.getObject("XZ_Plane003"), [""])
sketch7.MapMode = "FlatFace"
sketch7.addGeometry(Part.ArcOfCircle(Part.Circle(V(0, 0, 0), V(0, 0, 1), 2), math.radians(180), math.radians(270)), False)
sketch7.addGeometry(Part.ArcOfCircle(Part.Circle(V(0, 0, 0), V(0, 0, 1), 2), math.radians(-90), math.radians(0)), False)
sketch7.addGeometry(Part.ArcOfCircle(Part.Circle(V(0, 0, 0), V(0, 0, 1), 2), math.radians(0), math.radians(90)), False)
sketch7.addGeometry(Part.ArcOfCircle(Part.Circle(V(0, 0, 0), V(0, 0, 1), 2), math.radians(90), math.radians(180)), False)
sketch7.addConstraint(Sketcher.Constraint("Tangent", 0, 2, 1, 1))
sketch7.addConstraint(Sketcher.Constraint("Tangent", 1, 2, 2, 1))
sketch7.addConstraint(Sketcher.Constraint("Tangent", 2, 2, 3, 1))
sketch7.addConstraint(Sketcher.Constraint("Tangent", 3, 2, 0, 1))
sketch7.addConstraint(Sketcher.Constraint("Coincident", 0, 3, -1, 1))
sketch7.addConstraint(Sketcher.Constraint("Equal", 0, 1))
sketch7.addConstraint(Sketcher.Constraint("PointOnObject", 0, 2, -2))
sketch7.addConstraint(Sketcher.Constraint("PointOnObject", 1, 2, -1))
sketch7.addConstraint(Sketcher.Constraint("PointOnObject", 2, 2, -2))
sketch7.addConstraint(Sketcher.Constraint("PointOnObject", 3, 2, -1))
sketch7.addConstraint(Sketcher.Constraint("Radius", 0, Q("2 mm")))
pad6 = doc.addObject("PartDesign::Pad", "Pad005")
body4.addObject(pad6)
pad6.Profile = sketch7
pad6.Length = 10.2108

doc.recompute()
